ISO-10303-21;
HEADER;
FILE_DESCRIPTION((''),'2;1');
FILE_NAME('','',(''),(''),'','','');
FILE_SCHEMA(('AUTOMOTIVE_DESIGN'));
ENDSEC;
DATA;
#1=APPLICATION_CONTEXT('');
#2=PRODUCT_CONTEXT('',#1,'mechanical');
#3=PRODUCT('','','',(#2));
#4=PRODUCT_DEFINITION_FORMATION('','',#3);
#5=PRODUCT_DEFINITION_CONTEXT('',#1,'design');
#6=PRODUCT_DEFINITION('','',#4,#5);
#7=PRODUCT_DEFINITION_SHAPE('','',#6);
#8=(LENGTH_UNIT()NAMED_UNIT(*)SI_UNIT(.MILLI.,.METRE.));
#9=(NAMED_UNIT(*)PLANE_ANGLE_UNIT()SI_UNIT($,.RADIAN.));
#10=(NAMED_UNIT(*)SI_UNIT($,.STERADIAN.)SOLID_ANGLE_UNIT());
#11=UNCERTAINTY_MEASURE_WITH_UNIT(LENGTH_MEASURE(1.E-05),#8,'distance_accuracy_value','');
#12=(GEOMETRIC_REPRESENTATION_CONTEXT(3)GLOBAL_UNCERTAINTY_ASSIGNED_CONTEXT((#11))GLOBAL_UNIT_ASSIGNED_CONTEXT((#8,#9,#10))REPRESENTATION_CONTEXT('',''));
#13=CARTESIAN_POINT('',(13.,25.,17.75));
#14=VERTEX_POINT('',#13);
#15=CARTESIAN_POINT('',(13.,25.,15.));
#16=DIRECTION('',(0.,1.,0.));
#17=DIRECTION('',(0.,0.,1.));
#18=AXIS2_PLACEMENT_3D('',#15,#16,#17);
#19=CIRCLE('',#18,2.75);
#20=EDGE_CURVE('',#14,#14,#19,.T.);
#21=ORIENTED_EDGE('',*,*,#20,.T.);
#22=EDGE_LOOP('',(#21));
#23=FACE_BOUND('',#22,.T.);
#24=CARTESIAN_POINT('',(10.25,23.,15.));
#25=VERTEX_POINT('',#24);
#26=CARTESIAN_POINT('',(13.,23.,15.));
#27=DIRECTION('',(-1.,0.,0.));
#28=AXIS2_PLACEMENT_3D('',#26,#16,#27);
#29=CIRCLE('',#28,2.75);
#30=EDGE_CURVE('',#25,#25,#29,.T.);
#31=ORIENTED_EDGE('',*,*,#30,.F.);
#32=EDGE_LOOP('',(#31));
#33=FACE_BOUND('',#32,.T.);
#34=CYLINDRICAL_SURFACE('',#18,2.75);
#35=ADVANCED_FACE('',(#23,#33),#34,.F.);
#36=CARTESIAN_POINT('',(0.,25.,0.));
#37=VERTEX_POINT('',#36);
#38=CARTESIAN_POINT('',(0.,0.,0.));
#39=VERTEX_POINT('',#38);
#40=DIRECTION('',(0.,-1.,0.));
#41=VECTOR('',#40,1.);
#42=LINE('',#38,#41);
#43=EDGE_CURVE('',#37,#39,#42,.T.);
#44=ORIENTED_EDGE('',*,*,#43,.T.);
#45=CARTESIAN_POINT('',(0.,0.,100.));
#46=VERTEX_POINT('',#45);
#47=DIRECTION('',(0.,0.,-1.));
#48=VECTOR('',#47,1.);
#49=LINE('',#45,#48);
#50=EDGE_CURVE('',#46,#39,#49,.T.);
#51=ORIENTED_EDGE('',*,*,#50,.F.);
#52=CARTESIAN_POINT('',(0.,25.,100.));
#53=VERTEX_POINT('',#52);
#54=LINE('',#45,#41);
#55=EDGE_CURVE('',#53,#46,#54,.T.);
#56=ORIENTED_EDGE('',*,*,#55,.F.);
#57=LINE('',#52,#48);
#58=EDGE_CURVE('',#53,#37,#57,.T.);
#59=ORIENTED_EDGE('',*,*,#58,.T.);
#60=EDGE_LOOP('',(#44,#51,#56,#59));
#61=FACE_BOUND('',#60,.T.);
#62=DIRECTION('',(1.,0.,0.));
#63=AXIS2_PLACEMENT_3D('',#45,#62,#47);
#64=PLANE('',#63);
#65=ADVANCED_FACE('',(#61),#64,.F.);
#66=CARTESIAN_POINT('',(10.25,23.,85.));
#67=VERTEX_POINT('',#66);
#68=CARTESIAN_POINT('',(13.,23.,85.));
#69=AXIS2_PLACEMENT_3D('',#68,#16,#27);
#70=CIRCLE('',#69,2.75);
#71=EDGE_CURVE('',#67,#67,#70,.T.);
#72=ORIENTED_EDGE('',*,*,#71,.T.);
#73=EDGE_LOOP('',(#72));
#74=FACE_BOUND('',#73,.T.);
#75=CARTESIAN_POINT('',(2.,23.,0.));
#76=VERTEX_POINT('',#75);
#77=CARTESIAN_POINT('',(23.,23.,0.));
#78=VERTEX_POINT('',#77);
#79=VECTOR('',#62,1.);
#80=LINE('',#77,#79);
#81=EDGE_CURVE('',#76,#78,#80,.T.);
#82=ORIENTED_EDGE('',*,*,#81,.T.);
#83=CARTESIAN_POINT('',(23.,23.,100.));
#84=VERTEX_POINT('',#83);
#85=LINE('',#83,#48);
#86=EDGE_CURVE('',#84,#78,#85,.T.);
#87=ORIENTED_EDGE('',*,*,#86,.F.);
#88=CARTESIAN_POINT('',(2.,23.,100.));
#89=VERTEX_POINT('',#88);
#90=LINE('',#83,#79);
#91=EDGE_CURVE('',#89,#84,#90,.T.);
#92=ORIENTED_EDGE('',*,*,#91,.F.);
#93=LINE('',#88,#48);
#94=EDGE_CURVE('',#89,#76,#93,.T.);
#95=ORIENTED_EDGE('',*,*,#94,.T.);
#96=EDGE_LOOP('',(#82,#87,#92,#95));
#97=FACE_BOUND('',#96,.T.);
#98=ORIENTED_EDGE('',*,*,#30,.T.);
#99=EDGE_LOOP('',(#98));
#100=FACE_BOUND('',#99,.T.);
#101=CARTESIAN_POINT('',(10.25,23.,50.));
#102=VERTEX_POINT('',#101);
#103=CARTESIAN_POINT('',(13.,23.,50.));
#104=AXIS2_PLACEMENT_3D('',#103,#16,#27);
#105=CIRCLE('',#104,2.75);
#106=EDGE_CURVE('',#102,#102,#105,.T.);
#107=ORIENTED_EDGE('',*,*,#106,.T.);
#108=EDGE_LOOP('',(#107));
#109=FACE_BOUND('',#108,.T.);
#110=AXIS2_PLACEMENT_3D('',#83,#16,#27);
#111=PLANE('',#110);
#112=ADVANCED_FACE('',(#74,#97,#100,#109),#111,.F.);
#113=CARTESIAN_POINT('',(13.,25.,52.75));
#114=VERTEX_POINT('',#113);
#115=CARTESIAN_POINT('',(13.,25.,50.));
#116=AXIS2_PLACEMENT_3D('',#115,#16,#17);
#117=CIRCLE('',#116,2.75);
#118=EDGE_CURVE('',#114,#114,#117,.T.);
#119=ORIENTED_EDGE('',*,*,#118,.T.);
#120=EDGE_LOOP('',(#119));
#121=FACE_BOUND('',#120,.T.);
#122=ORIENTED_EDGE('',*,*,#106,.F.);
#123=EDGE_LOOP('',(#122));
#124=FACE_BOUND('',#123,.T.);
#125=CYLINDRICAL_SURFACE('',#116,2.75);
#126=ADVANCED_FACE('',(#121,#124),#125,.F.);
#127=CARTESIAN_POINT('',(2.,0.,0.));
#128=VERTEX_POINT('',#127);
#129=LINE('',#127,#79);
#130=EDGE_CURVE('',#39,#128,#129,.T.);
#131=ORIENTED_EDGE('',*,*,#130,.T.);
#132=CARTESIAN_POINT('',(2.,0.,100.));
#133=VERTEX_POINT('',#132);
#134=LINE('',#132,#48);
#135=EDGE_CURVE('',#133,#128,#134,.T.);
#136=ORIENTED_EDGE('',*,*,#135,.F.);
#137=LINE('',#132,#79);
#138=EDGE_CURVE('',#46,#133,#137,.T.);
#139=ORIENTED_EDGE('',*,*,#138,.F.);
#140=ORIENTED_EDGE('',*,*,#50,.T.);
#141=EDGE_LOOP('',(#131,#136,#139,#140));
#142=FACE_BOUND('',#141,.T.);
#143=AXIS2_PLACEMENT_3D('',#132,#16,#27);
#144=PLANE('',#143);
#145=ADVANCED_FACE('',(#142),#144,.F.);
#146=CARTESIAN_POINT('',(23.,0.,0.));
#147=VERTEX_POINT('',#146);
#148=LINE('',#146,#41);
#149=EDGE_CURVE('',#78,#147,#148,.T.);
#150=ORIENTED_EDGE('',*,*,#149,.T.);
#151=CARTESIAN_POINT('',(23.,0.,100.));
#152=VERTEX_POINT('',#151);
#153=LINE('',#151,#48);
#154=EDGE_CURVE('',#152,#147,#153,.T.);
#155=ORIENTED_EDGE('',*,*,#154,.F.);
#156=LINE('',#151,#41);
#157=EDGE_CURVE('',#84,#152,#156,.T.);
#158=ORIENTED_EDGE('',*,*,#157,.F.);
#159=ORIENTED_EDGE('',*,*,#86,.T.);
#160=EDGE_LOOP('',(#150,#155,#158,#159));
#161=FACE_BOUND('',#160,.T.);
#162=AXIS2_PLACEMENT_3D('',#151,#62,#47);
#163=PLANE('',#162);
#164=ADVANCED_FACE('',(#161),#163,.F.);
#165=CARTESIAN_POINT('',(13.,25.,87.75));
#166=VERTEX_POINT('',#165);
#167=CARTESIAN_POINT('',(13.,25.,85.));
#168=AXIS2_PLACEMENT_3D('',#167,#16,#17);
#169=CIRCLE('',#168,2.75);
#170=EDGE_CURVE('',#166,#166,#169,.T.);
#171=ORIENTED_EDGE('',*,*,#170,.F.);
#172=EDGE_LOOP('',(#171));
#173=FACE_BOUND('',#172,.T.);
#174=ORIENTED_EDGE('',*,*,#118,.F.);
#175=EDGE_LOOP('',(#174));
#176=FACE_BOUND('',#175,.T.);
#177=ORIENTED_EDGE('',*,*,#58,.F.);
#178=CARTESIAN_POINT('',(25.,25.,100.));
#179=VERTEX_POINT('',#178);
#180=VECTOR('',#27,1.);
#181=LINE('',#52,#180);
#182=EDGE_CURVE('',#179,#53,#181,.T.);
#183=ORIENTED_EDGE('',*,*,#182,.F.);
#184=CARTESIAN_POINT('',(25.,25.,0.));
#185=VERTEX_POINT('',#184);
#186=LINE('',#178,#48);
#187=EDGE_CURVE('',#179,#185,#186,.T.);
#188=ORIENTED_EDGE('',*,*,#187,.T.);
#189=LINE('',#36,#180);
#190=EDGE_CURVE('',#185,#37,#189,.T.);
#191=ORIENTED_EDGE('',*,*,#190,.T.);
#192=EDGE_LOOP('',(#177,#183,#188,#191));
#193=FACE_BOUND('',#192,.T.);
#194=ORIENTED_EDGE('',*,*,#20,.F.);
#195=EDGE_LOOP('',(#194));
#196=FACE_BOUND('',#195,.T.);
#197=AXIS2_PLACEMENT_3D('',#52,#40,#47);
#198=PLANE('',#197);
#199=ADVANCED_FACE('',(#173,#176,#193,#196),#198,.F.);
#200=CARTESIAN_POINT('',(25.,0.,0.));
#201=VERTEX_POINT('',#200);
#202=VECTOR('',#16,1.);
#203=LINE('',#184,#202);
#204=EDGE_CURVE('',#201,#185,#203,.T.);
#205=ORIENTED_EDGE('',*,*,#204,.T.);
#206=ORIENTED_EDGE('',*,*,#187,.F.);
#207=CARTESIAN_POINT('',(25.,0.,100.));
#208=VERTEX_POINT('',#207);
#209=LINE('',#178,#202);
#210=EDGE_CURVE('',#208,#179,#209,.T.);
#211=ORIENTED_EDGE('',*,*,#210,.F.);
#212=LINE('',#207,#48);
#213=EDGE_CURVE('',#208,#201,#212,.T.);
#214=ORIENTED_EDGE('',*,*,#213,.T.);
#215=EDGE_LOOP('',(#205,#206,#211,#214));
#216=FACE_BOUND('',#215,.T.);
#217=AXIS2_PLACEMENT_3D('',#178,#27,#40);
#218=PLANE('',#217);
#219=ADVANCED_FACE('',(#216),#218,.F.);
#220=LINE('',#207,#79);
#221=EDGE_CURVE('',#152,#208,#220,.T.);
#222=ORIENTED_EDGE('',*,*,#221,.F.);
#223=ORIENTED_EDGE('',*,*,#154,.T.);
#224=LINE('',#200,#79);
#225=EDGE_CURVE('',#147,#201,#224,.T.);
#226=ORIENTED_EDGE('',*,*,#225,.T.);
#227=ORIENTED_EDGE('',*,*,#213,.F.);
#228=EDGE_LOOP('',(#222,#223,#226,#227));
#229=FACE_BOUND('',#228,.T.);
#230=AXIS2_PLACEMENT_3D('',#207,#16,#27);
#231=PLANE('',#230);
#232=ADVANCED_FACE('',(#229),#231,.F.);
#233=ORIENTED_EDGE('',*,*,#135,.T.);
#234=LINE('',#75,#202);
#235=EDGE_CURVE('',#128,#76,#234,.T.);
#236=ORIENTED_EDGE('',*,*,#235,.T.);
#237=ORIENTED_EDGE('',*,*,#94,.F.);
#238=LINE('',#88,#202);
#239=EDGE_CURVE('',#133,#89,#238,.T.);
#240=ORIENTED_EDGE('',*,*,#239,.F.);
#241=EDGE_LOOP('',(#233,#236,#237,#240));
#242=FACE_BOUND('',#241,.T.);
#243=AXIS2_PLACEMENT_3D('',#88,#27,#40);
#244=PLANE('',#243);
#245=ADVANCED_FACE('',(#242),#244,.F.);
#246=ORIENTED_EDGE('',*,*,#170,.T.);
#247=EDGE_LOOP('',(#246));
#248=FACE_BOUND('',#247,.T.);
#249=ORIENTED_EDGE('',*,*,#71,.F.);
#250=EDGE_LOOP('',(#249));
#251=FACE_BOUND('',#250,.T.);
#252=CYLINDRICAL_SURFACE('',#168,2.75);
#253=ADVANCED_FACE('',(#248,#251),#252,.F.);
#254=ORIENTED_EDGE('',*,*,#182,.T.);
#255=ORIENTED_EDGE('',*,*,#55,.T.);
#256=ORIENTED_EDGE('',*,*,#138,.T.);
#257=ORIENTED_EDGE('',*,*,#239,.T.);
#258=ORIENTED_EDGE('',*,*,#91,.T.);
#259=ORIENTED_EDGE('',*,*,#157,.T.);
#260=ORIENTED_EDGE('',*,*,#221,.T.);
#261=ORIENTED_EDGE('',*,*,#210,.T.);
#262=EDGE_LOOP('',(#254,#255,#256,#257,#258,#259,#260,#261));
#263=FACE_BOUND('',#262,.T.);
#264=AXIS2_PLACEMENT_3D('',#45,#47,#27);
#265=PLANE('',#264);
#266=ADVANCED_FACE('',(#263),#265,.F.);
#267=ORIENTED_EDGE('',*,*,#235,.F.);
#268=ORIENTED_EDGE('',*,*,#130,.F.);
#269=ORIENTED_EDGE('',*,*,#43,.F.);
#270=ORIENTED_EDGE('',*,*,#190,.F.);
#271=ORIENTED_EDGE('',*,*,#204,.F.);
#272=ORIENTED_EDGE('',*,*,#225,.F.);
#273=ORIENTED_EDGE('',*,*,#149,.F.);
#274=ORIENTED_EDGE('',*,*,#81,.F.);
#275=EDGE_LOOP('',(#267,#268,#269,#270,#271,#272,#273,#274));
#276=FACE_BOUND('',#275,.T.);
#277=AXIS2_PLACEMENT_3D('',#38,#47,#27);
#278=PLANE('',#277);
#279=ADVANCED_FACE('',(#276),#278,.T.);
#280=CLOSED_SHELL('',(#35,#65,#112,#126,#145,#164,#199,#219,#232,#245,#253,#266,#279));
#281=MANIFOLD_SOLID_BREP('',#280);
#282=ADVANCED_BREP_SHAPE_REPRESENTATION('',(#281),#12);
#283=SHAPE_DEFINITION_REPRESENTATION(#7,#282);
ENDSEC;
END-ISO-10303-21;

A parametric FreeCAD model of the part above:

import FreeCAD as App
import Part
import Sketcher

doc = App.newDocument("Part")
body = doc.addObject("PartDesign::Body", "Body")

# Sketch on XY plane
sketch1 = body.newObject("Sketcher::SketchObject", "Sketch")
sketch1.AttachmentSupport = (doc.getObject("XY_Plane"), [""])
sketch1.MapMode = "FlatFace"
sketch1.addGeometry([
    Part.LineSegment(App.Vector(0, 25, 0), App.Vector(0, 0, 0)),  # 0
    Part.LineSegment(App.Vector(0, 0, 0), App.Vector(2, 0, 0)),  # 1
    Part.LineSegment(App.Vector(2, 0, 0), App.Vector(2, 23, 0)),  # 2
    Part.LineSegment(App.Vector(2, 23, 0), App.Vector(23, 23, 0)),  # 3
    Part.LineSegment(App.Vector(23, 23, 0), App.Vector(23, 0, 0)),  # 4
    Part.LineSegment(App.Vector(23, 0, 0), App.Vector(25, 0, 0)),  # 5
    Part.LineSegment(App.Vector(25, 0, 0), App.Vector(25, 25, 0)),  # 6
    Part.LineSegment(App.Vector(25, 25, 0), App.Vector(0, 25, 0)),  # 7
], False)
sketch1.addConstraint([
    Sketcher.Constraint("Coincident", 0, 2, 1, 1),
    Sketcher.Constraint("Coincident", 1, 2, 2, 1),
    Sketcher.Constraint("Coincident", 2, 2, 3, 1),
    Sketcher.Constraint("Coincident", 3, 2, 4, 1),
    Sketcher.Constraint("Coincident", 4, 2, 5, 1),
    Sketcher.Constraint("Coincident", 5, 2, 6, 1),
    Sketcher.Constraint("Coincident", 6, 2, 7, 1),
    Sketcher.Constraint("Coincident", 7, 2, 0, 1),
    Sketcher.Constraint("Vertical", 0),
    Sketcher.Constraint("Horizontal", 1),
    Sketcher.Constraint("Vertical", 2),
    Sketcher.Constraint("Horizontal", 3),
    Sketcher.Constraint("Vertical", 4),
    Sketcher.Constraint("Horizontal", 5),
    Sketcher.Constraint("Vertical", 6),
    Sketcher.Constraint("Horizontal", 7),
    Sketcher.Constraint("Coincident", 0, 2, -1, 1),
    Sketcher.Constraint("PointOnObject", 4, 2, -1),
    Sketcher.Constraint("Equal", 1, 5),
    Sketcher.Constraint("Equal", 7, 0),
    Sketcher.Constraint("DistanceX", 1, 1, 1, 2, 2.0),
    Sketcher.Constraint("DistanceX", 3, 1, 3, 2, 21.0),
    Sketcher.Constraint("DistanceY", 2, 1, 2, 2, 23.0),
])
pad1 = body.newObject("PartDesign::Pad", "Pad")
pad1.Profile = sketch1
pad1.Length = 100

# Sketch on XZ plane
sketch2 = body.newObject("Sketcher::SketchObject", "Sketch001")
sketch2.AttachmentSupport = (doc.getObject("XZ_Plane"), [""])
sketch2.MapMode = "FlatFace"
sketch2.AttachmentOffset = App.Placement(App.Vector(0, 0, -25), App.Rotation())
sketch2.addGeometry([
    Part.Circle(App.Vector(13, 50, 0), App.Vector(0, 0, 1), 2.8),
    Part.Circle(App.Vector(13, 15, 0), App.Vector(0, 0, 1), 2.8),
    Part.Circle(App.Vector(13, 85, 0), App.Vector(0, 0, 1), 2.8),
], False)
sketch2.addConstraint([
    Sketcher.Constraint("Equal", 0, 1),
    Sketcher.Constraint("Equal", 1, 2),
    Sketcher.Constraint("Vertical", 0, 3, 1, 3),
    Sketcher.Constraint("Vertical", 1, 3, 2, 3),
    Sketcher.Constraint("Diameter", 0, 5.5),
    Sketcher.Constraint("DistanceX", -1, 1, 0, 3, 13.0),
    Sketcher.Constraint("DistanceY", -1, 1, 0, 3, 50.0),
    Sketcher.Constraint("DistanceY", -1, 1, 1, 3, 15.0),
    Sketcher.Constraint("DistanceY", -1, 1, 2, 3, 85.0),
])
doc.recompute()
hole = body.newObject("PartDesign::Hole", "Hole")
hole.Profile = sketch2
hole.ThreadType = "None"
hole.Diameter = 5.5
hole.DepthType = "ThroughAll"
hole.Reversed = True

doc.recompute()
